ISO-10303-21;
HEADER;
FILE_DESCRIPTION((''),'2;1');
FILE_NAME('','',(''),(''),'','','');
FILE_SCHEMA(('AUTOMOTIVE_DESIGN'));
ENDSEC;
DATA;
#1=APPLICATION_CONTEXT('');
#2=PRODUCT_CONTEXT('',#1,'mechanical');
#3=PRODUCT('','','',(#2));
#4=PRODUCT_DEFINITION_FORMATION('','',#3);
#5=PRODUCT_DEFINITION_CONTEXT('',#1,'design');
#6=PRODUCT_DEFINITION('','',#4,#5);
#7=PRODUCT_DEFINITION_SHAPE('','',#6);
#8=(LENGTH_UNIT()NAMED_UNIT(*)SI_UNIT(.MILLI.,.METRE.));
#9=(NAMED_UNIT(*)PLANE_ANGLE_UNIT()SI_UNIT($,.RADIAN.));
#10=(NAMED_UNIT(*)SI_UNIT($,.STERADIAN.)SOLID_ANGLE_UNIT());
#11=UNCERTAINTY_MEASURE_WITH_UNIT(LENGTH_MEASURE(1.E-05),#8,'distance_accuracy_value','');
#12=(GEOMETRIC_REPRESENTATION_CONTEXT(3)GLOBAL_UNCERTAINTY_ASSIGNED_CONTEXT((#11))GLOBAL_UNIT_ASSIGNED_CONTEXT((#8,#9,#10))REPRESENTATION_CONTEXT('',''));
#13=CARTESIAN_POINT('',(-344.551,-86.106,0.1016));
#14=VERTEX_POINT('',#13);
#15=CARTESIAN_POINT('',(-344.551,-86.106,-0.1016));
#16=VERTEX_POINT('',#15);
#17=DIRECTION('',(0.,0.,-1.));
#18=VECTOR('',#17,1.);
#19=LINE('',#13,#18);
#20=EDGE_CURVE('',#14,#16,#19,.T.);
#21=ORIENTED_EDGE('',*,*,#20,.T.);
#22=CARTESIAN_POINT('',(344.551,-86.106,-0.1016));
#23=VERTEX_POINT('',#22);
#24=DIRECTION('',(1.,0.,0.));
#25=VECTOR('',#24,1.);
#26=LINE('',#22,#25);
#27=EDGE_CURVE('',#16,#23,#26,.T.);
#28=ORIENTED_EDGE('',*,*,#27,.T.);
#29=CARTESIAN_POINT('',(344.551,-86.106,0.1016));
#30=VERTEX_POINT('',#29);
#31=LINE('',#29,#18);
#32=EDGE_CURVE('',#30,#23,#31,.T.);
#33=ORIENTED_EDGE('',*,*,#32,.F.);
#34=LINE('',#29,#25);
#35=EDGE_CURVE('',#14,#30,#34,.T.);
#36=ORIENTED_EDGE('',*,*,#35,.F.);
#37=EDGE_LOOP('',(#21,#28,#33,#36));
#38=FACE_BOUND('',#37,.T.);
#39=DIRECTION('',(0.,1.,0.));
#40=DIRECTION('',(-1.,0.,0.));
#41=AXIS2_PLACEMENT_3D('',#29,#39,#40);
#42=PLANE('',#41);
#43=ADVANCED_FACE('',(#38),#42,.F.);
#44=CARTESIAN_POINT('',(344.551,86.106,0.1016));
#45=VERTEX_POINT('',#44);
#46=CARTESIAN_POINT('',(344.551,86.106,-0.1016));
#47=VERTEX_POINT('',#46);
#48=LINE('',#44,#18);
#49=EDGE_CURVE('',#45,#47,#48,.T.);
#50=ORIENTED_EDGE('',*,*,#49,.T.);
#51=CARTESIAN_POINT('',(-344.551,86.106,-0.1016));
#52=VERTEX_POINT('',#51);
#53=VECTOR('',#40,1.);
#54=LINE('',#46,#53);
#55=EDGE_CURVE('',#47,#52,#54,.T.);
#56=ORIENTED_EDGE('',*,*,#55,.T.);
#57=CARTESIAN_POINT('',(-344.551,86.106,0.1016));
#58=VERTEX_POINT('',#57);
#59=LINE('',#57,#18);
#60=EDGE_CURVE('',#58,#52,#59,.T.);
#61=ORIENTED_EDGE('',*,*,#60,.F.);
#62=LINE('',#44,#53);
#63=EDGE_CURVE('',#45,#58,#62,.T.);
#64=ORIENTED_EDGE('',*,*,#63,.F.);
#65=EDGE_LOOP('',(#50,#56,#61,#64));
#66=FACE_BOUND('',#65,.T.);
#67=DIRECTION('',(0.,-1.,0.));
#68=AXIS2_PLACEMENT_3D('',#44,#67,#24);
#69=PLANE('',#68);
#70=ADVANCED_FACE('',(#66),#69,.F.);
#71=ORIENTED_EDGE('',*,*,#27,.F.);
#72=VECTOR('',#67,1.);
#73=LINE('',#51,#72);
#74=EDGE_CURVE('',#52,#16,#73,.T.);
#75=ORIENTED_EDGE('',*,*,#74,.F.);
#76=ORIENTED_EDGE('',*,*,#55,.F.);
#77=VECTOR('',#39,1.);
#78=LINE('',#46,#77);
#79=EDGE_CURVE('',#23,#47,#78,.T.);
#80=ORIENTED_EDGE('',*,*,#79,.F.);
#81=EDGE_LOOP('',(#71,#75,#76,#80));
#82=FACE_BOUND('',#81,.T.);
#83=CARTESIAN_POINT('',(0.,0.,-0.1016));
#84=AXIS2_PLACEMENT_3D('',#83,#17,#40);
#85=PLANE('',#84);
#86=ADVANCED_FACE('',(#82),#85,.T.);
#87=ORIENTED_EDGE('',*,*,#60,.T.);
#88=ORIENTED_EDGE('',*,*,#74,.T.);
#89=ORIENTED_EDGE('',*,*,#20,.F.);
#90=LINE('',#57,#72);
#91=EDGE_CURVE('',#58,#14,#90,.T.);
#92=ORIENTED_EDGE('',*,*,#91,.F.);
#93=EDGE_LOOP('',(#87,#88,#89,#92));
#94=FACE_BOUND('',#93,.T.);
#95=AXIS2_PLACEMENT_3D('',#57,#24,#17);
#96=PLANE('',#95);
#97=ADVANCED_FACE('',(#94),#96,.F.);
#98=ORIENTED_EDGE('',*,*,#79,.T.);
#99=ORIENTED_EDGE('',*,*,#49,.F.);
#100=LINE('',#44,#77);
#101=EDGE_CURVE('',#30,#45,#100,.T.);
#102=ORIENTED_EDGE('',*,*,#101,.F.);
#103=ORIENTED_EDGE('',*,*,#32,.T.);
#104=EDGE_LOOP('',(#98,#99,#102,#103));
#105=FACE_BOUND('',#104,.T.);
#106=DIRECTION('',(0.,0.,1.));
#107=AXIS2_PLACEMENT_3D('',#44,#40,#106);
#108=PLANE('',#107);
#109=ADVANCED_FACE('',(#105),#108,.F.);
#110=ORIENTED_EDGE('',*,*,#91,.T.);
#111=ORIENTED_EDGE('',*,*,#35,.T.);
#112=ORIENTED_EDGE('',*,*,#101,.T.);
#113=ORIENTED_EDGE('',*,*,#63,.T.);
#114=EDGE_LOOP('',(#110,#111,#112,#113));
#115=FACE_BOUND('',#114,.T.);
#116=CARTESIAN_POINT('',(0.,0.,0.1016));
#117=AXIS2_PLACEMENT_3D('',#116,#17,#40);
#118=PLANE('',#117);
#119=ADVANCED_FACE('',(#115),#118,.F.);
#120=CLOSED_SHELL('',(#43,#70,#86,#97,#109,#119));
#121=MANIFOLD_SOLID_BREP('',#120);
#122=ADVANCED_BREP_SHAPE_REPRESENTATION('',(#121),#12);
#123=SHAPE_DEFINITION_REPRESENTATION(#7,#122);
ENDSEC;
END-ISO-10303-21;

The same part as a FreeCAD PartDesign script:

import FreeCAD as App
import Part
import Sketcher
from FreeCAD import Vector
Q = App.Units.Quantity


def add_polygon(sketch, points):
    """Adds a closed chain of lines whose ends are joined by coincident constraints."""
    first, n = sketch.GeometryCount, len(points)
    for a, b in zip(points, points[1:] + points[:1]):
        sketch.addGeometry(Part.LineSegment(App.Vector(*a, 0), App.Vector(*b, 0)), False)
    for i in range(n):
        sketch.addConstraint(Sketcher.Constraint("Coincident", first + i, 2, first + (i + 1) % n, 1))

doc = App.newDocument("Part")
body = doc.addObject("PartDesign::Body", "Body")

# Sketch on XY plane
sketch1 = body.newObject("Sketcher::SketchObject", "Sketch")
sketch1.AttachmentSupport = (doc.getObject("XY_Plane"), [""])
sketch1.MapMode = "FlatFace"
add_polygon(sketch1, [(-344.551, 86.106), (-344.551, -86.106), (344.551, -86.106), (344.551, 86.106)])  # lines 0-3
sketch1.addConstraint([
    Sketcher.Constraint("Vertical", 0),
    Sketcher.Constraint("Horizontal", 1),
    Sketcher.Constraint("Vertical", 2),
    Sketcher.Constraint("Horizontal", 3),
    Sketcher.Constraint("Symmetric", 0, 2, 2, 2, -1, 1),
    Sketcher.Constraint("DistanceX", 1, 1, 1, 2, Q("27.13 in")),
    Sketcher.Constraint("DistanceY", 0, 2, 0, 1, Q("6.78 in")),
])
pad1 = body.newObject("PartDesign::Pad", "Pad")
pad1.Profile = sketch1
pad1.Length = Q("0.008 in")
pad1.Midplane = True

doc.recompute()
